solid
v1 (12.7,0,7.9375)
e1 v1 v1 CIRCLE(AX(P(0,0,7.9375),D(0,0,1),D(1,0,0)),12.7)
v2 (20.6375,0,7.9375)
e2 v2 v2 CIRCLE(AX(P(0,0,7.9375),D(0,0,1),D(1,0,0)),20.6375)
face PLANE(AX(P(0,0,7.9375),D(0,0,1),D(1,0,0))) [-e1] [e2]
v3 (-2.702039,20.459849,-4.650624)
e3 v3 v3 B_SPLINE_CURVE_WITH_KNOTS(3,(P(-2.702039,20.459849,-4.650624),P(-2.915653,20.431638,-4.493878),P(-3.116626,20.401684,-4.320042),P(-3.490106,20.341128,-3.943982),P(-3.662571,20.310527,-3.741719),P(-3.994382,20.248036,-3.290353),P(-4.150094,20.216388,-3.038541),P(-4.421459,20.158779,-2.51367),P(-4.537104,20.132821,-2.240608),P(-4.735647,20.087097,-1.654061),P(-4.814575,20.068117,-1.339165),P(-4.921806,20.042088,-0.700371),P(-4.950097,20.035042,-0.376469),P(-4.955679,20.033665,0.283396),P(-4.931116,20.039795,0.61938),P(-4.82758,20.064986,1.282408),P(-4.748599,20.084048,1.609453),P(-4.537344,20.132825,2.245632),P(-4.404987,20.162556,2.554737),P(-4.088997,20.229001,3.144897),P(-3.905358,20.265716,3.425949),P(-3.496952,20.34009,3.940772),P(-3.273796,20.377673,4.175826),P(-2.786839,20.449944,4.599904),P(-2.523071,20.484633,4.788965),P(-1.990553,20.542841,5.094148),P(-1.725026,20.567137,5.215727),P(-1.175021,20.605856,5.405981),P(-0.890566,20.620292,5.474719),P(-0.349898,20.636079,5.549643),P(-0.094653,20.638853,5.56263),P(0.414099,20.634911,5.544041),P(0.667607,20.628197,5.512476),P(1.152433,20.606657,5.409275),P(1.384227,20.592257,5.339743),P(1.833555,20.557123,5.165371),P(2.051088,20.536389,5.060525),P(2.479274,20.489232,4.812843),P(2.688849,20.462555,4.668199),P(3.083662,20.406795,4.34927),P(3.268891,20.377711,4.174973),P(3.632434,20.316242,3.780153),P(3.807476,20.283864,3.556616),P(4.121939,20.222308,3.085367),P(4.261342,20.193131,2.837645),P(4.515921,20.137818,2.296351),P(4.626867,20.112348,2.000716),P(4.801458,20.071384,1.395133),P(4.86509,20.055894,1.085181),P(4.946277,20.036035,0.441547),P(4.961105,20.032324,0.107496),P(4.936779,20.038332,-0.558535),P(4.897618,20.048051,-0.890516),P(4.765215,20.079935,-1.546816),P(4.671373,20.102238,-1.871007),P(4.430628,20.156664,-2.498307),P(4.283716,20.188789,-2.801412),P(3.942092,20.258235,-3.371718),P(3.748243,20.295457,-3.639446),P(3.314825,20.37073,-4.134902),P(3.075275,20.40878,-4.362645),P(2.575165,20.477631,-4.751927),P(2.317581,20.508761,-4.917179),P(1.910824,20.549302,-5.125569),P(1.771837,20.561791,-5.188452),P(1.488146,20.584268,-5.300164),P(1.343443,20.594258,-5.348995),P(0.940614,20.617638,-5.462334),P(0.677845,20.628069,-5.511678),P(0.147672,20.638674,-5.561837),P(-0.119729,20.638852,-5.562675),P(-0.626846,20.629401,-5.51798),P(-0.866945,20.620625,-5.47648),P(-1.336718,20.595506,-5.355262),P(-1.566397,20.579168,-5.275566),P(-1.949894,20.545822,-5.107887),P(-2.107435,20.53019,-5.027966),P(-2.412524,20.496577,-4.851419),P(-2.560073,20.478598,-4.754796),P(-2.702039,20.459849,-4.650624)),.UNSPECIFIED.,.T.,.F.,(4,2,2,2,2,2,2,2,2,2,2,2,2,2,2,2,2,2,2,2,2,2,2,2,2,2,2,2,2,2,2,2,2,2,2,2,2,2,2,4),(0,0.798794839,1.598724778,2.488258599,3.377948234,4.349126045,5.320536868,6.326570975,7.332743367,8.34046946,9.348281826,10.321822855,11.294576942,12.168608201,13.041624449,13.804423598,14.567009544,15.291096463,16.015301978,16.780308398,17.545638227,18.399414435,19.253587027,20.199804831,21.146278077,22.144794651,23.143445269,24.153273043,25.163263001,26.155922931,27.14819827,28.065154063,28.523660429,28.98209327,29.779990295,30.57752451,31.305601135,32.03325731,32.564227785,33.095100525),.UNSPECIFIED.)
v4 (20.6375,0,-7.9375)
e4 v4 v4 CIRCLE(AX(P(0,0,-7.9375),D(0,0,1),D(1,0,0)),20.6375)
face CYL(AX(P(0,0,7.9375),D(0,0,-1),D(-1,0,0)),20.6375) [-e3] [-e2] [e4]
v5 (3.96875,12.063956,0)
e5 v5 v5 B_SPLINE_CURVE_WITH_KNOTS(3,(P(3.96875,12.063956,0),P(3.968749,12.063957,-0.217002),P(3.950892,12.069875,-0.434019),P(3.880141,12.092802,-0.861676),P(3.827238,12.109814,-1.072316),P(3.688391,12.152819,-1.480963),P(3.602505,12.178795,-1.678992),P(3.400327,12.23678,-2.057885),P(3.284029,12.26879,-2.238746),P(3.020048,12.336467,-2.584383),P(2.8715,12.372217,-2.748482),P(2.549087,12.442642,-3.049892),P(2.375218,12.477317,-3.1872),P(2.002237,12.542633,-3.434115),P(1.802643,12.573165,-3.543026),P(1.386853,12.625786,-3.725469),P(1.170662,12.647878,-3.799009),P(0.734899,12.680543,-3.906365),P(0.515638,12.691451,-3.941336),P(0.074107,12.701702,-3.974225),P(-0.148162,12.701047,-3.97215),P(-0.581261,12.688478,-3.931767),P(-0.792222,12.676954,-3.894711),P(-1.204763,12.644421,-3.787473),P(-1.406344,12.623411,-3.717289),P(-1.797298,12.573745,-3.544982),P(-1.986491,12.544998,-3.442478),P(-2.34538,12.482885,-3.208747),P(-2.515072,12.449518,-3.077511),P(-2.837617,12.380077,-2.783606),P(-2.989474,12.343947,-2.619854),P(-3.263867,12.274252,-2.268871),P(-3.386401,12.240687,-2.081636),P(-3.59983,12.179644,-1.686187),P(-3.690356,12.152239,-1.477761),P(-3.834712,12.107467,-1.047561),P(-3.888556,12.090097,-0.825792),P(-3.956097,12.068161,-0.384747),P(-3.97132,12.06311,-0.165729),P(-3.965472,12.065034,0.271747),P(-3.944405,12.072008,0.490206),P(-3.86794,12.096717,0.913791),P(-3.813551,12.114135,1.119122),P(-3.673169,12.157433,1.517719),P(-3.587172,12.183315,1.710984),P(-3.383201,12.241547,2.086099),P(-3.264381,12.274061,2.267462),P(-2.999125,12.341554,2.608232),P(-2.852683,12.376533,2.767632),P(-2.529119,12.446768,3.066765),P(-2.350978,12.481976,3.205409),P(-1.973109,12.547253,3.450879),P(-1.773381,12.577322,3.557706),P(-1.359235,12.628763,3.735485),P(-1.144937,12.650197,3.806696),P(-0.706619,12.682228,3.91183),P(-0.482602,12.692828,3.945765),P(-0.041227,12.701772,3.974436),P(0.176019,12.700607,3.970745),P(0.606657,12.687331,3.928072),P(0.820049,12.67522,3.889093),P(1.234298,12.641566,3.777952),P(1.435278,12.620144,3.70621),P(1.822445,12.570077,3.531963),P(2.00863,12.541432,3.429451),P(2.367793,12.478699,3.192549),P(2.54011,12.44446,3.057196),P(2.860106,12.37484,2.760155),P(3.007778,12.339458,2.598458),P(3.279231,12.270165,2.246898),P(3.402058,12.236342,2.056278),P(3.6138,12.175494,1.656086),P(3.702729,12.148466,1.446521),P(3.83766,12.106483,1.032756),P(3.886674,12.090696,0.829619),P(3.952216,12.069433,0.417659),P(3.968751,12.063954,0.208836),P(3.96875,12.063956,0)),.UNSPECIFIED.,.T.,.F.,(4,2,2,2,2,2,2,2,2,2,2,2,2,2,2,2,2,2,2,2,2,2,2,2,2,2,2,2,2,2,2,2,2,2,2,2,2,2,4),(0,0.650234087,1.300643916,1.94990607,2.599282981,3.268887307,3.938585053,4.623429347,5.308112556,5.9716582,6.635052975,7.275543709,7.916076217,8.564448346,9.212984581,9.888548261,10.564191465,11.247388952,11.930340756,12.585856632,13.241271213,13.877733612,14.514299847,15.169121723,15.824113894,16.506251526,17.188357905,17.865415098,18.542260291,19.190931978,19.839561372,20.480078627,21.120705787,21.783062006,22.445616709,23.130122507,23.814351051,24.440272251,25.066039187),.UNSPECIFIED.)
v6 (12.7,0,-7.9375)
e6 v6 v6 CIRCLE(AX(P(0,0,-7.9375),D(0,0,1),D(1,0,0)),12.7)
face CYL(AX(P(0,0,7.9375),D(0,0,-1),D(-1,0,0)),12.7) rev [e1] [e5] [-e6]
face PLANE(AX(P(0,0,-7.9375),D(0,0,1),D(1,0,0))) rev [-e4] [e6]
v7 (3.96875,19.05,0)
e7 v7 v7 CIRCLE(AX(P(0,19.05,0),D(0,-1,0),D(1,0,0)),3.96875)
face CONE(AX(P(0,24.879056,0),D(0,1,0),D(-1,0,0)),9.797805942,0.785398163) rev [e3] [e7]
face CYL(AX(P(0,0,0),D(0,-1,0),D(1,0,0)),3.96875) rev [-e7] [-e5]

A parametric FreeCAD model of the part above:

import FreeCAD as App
import Part
import Sketcher
from FreeCAD import Vector
Q = App.Units.Quantity


def add_polygon(sketch, points):
    """Adds a closed chain of lines whose ends are joined by coincident constraints."""
    first, n = sketch.GeometryCount, len(points)
    for a, b in zip(points, points[1:] + points[:1]):
        sketch.addGeometry(Part.LineSegment(App.Vector(*a, 0), App.Vector(*b, 0)), False)
    for i in range(n):
        sketch.addConstraint(Sketcher.Constraint("Coincident", first + i, 2, first + (i + 1) % n, 1))

doc = App.newDocument("Part")
body = doc.addObject("PartDesign::Body", "Body")

# Sketch on XY plane
sketch1 = body.newObject("Sketcher::SketchObject", "Sketch")
sketch1.AttachmentSupport = (doc.getObject("XY_Plane"), [""])
sketch1.MapMode = "FlatFace"
sketch1.addGeometry([
    Part.Circle(Vector(0, 0, 0), Vector(0, 0, 1), 21),
    Part.Circle(Vector(0, 0, 0), Vector(0, 0, 1), 13),
], False)
sketch1.addConstraint([
    Sketcher.Constraint("Coincident", 0, 3, -1, 1),
    Sketcher.Constraint("Coincident", 1, 3, -1, 1),
    Sketcher.Constraint("Diameter", 1, Q("1 in")),
    Sketcher.Constraint("Diameter", 0, Q("1.625 in")),
])
pad1 = body.newObject("PartDesign::Pad", "Pad")
pad1.Profile = sketch1
pad1.Length = Q("0.625 in")
pad1.Midplane = True

# Sketch on XY plane
sketch2 = body.newObject("Sketcher::SketchObject", "Sketch001")
sketch2.AttachmentSupport = (doc.getObject("XY_Plane"), [""])
sketch2.MapMode = "FlatFace"
add_polygon(sketch2, [(0, 0), (0, 24.9), (-9.8, 24.9), (-4, 19.1), (-4, 0)])  # lines 0-4
sketch2.addConstraint([
    Sketcher.Constraint("Vertical", 0),
    Sketcher.Constraint("Horizontal", 1),
    Sketcher.Constraint("Vertical", 3),
    Sketcher.Constraint("Horizontal", 4),
    Sketcher.Constraint("Coincident", 4, 2, -1, 1),
    Sketcher.Constraint("Angle", 2, Q("-45 deg")),
    Sketcher.Constraint("DistanceY", 3, 2, 3, 1, Q("0.75 in")),
    Sketcher.Constraint("DistanceX", 4, 1, 4, 2, Q("0.15625 in")),
    Sketcher.Constraint("Distance", 2, Q("8.24353 mm")),
])
groove = body.newObject("PartDesign::Groove", "Groove")
groove.Profile = sketch2
groove.ReferenceAxis = (sketch2, ["V_Axis"])
groove.Angle = 360

doc.recompute()
